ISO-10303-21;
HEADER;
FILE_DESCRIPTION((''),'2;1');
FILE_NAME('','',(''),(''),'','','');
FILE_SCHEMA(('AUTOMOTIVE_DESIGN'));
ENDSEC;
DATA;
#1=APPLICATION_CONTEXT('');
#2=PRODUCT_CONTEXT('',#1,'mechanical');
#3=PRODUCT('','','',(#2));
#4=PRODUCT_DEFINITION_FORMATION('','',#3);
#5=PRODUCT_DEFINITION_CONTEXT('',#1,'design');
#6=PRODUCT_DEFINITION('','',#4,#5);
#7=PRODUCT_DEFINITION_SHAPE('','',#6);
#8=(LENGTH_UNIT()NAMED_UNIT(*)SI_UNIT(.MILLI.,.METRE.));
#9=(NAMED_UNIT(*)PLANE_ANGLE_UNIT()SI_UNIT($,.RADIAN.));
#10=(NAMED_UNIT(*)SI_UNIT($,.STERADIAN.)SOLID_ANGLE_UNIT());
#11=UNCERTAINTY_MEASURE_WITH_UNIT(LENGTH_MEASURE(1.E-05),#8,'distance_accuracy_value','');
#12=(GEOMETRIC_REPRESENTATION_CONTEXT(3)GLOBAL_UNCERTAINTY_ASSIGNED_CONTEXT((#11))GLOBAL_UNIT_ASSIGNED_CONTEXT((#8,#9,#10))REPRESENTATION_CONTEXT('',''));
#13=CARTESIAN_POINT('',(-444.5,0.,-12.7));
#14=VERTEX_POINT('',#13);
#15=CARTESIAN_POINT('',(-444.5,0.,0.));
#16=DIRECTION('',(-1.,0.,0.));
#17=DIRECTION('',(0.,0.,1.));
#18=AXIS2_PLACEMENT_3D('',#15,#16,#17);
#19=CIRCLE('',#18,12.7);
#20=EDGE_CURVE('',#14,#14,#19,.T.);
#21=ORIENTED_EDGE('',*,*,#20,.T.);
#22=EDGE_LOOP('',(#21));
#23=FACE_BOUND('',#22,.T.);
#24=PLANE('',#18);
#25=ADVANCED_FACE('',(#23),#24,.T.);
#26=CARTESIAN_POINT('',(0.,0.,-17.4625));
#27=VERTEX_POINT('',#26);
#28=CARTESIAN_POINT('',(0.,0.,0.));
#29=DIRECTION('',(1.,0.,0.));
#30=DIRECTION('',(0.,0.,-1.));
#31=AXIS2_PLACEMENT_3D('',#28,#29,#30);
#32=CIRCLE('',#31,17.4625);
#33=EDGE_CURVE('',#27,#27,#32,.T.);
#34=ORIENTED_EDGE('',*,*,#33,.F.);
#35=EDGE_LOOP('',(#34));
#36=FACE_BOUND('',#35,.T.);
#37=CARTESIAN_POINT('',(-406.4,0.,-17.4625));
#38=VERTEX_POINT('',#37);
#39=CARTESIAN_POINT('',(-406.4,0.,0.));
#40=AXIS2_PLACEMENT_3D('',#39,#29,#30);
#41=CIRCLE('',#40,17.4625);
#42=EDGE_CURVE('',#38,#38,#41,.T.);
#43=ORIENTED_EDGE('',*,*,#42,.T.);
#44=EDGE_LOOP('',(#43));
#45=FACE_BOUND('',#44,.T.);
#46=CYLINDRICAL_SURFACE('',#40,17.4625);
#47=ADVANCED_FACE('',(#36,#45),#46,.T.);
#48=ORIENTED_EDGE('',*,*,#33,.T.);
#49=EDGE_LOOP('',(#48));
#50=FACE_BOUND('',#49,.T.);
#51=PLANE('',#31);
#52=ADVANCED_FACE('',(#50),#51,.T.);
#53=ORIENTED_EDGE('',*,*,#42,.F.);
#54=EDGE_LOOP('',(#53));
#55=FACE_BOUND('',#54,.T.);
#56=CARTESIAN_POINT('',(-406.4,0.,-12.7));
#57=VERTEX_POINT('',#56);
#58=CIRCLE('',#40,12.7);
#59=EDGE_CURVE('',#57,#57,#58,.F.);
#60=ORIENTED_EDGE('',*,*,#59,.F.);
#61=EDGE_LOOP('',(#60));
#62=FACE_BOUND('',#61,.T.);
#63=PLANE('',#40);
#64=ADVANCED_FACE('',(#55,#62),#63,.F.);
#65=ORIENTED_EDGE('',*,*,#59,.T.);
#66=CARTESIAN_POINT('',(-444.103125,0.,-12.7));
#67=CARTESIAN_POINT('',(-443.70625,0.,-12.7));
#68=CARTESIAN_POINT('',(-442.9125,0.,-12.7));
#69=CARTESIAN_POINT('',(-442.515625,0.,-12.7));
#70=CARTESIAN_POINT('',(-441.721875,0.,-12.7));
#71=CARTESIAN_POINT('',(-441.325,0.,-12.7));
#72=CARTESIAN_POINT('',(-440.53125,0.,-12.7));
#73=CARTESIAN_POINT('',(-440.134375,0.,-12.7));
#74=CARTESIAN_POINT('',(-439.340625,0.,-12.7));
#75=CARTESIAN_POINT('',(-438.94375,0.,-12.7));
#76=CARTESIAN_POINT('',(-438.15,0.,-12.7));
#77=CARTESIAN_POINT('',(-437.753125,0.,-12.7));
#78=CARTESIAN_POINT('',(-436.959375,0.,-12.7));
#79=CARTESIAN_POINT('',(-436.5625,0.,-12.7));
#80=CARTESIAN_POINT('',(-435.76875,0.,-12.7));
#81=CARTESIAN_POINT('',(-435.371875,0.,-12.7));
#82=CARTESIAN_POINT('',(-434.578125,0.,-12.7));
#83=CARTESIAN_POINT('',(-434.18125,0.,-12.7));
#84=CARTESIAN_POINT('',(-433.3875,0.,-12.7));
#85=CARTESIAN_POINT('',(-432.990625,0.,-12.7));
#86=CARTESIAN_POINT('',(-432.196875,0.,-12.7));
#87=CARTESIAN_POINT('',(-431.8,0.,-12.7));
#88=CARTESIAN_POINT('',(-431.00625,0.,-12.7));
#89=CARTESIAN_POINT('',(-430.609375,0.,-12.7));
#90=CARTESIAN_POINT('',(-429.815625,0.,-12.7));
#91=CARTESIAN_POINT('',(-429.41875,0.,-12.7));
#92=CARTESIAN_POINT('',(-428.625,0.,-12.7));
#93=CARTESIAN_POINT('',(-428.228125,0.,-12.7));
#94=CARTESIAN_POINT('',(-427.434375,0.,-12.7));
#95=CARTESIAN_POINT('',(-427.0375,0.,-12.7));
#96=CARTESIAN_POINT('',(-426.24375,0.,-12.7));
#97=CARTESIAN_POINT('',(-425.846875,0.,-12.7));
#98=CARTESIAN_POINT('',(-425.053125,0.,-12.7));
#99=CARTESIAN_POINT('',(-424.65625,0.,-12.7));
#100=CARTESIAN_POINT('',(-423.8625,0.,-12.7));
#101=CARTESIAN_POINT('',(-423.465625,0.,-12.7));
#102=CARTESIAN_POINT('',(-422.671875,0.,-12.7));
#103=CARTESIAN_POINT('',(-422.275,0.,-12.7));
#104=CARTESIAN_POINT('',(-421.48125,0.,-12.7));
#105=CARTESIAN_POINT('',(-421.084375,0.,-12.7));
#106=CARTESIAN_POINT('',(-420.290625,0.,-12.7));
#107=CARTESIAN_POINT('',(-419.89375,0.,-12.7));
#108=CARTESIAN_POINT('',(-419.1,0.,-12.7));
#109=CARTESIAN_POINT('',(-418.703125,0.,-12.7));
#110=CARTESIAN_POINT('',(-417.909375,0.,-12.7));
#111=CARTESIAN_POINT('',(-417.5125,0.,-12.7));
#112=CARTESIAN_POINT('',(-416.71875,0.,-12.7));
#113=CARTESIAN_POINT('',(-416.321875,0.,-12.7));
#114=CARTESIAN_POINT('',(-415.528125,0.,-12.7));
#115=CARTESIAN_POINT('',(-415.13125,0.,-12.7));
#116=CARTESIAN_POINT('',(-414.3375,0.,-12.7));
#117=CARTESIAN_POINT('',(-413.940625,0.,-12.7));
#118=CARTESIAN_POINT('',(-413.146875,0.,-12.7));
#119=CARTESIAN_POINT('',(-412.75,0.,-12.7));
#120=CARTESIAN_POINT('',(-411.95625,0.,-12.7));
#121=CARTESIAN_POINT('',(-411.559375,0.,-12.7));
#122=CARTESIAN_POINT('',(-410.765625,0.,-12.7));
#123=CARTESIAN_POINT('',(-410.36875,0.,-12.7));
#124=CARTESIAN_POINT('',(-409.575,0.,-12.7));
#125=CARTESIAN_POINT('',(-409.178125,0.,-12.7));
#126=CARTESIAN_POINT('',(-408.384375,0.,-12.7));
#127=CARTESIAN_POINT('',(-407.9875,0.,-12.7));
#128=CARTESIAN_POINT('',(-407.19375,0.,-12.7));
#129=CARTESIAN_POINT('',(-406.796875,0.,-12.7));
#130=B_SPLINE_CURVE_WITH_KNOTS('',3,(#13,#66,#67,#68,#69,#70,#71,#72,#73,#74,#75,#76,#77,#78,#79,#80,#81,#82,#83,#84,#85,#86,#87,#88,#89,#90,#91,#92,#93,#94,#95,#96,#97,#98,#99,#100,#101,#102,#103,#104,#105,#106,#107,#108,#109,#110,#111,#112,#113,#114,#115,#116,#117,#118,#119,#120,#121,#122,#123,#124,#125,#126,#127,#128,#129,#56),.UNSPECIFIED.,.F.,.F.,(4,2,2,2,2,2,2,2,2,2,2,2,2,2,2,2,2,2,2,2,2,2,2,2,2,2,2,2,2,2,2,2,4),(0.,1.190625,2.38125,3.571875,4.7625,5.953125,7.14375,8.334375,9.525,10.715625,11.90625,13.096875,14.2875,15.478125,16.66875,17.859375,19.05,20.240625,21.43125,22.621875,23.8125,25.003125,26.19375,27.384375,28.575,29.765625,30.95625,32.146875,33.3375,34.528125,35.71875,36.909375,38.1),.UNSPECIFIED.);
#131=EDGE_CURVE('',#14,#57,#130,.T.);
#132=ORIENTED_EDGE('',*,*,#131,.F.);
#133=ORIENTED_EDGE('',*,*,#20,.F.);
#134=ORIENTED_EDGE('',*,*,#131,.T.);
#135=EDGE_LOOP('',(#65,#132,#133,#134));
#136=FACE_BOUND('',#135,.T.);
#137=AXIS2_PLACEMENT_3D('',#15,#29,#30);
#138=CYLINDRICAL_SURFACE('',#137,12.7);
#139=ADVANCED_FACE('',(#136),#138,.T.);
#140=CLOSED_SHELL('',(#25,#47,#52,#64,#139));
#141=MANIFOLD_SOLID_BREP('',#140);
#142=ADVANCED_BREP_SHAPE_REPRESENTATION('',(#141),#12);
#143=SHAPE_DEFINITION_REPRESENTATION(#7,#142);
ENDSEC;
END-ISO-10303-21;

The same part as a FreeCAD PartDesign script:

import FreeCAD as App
import Part
import Sketcher

V = App.Vector
Q = App.Units.Quantity

doc = App.newDocument("Part")
params = doc.addObject("Spreadsheet::Sheet", "Params")
for row, (alias, value) in enumerate([
    ("sketch1_diameter", "1.375 in"),
    ("pad1_length", "16 in"),
    ("sketch2_diameter", "1 in"),
    ("pad2_length", "1.5 in"),
], start=1):
    params.set(f"A{row}", alias)
    params.set(f"B{row}", "=" + value)
    params.setAlias(f"B{row}", alias)

body = doc.addObject("PartDesign::Body", "Body")

# Sketch on YZ plane
sketch1 = body.newObject("Sketcher::SketchObject", "Sketch")
sketch1.AttachmentSupport = (doc.getObject("YZ_Plane"), [""])
sketch1.MapMode = "FlatFace"
sketch1.addGeometry(Part.Circle(V(0, 0, 0), V(0, 0, 1), 17), False)
sketch1.addConstraint(Sketcher.Constraint("Coincident", 0, 3, -1, 1))
sketch1.addConstraint(Sketcher.Constraint("Diameter", 0, Q("1.375 in")))
sketch1.setExpression("Constraints[1]", "Params.sketch1_diameter")
pad1 = body.newObject("PartDesign::Pad", "Pad")
pad1.Profile = sketch1
pad1.setExpression("Length", "Params.pad1_length")
pad1.Reversed = True

# Sketch on YZ plane
sketch2 = body.newObject("Sketcher::SketchObject", "Sketch001")
sketch2.AttachmentSupport = (doc.getObject("YZ_Plane"), [""])
sketch2.MapMode = "FlatFace"
sketch2.AttachmentOffset = App.Placement(V(0, 0, -16 * 25.4), App.Rotation())
sketch2.addGeometry(Part.Circle(V(0, 0, 0), V(0, 0, 1), 13), False)
sketch2.addConstraint(Sketcher.Constraint("Coincident", 0, 3, -1, 1))
sketch2.addConstraint(Sketcher.Constraint("Diameter", 0, Q("1 in")))
sketch2.setExpression("Constraints[1]", "Params.sketch2_diameter")
pad2 = body.newObject("PartDesign::Pad", "Pad001")
pad2.Profile = sketch2
pad2.setExpression("Length", "Params.pad2_length")
pad2.Reversed = True

doc.recompute()
